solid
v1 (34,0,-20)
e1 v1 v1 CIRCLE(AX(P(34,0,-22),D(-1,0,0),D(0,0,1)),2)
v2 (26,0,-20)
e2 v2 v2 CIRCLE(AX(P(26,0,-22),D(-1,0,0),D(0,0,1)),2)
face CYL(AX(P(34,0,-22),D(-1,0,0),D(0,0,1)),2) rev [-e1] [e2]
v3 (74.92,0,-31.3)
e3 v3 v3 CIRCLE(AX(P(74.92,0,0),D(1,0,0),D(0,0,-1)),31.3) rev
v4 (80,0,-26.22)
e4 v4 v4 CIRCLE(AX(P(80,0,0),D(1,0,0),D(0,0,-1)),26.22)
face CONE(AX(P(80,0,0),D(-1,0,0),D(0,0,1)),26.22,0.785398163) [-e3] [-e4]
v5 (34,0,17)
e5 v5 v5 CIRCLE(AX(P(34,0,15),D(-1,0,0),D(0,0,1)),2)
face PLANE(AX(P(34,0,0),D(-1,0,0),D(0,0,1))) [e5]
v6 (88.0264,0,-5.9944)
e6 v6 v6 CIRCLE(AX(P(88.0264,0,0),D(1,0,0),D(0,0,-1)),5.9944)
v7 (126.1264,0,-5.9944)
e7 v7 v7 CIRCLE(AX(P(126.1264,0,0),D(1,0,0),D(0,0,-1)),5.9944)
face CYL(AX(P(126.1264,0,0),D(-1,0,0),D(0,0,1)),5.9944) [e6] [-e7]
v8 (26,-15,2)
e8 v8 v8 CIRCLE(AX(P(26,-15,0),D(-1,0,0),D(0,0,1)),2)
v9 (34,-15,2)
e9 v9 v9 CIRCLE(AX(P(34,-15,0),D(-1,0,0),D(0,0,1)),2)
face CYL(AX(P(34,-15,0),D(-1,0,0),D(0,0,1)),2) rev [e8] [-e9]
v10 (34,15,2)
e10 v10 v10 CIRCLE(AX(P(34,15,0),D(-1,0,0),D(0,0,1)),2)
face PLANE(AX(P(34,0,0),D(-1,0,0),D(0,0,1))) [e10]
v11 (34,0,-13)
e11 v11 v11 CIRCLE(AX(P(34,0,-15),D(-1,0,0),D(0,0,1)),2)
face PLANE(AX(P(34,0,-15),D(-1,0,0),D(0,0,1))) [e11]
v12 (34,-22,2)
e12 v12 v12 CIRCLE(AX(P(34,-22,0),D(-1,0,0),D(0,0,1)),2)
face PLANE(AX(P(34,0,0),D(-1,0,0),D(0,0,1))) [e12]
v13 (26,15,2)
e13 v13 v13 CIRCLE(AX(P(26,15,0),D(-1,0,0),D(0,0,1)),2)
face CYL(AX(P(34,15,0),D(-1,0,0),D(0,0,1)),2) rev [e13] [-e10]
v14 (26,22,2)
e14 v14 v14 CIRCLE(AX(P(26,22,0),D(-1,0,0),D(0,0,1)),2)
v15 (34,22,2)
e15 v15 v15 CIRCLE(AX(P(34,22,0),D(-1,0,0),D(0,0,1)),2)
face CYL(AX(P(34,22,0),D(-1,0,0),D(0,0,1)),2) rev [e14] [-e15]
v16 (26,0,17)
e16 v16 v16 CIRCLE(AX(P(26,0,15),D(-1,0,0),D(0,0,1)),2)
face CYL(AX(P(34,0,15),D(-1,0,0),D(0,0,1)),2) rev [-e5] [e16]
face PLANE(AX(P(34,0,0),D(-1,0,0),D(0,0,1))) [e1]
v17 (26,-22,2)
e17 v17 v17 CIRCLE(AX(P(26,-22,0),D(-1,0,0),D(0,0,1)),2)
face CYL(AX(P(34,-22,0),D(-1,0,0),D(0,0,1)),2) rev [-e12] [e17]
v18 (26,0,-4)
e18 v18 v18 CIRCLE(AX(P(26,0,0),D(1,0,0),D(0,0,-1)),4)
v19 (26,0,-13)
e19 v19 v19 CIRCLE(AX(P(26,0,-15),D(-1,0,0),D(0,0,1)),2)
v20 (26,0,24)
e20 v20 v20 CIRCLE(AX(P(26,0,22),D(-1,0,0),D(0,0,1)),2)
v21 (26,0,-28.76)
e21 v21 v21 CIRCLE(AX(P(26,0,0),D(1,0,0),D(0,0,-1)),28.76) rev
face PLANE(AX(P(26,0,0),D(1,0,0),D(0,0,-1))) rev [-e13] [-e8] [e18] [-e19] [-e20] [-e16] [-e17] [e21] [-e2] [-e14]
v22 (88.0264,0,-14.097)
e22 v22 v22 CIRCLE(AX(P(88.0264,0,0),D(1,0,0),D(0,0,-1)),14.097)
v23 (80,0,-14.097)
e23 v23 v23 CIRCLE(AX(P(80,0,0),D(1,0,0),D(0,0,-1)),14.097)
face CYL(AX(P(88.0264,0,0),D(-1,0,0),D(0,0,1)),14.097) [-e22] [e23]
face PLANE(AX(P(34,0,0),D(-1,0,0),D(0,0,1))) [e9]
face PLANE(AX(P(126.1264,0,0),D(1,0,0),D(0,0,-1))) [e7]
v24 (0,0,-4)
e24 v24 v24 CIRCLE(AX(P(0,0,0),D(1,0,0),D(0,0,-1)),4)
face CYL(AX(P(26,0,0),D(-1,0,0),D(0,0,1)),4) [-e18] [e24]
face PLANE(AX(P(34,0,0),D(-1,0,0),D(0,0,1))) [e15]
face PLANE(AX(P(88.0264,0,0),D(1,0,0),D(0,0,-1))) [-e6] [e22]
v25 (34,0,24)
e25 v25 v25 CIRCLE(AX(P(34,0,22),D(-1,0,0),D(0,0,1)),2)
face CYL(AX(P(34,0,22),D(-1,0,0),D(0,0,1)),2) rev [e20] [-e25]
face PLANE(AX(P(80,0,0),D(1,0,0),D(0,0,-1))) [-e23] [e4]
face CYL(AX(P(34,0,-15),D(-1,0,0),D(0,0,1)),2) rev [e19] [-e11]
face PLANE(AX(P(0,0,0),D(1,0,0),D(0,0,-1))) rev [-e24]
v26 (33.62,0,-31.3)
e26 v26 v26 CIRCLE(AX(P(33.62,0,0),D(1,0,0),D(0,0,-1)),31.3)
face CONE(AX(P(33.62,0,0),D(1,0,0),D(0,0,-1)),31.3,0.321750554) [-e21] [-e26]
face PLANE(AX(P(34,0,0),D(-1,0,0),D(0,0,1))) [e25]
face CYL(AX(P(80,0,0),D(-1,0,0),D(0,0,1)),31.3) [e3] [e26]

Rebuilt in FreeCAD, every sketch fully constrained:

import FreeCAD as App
import Part
import Sketcher

V = App.Vector
Q = App.Units.Quantity


def edges_at(feature, points):
    """Names of the edges that pass closest to the given points."""
    edges = feature.Shape.Edges
    near = lambda p: min(range(len(edges)), key=lambda i: edges[i].distToShape(Part.Vertex(*p))[0])
    return sorted({f"Edge{near(p) + 1}" for p in points})

doc = App.newDocument("Part")
body = doc.addObject("PartDesign::Body", "Body")

# Sketch on YZ plane
sketch1 = body.newObject("Sketcher::SketchObject", "Sketch")
sketch1.AttachmentSupport = (doc.getObject("YZ_Plane"), [""])
sketch1.MapMode = "FlatFace"
sketch1.addGeometry(Part.Circle(V(0, 0, 0), V(0, 0, 1), 4), False)
sketch1.addConstraint([
    Sketcher.Constraint("Coincident", 0, 3, -1, 1),
    Sketcher.Constraint("Diameter", 0, 8.0),
])
pad1 = body.newObject("PartDesign::Pad", "Pad")
pad1.Profile = sketch1
pad1.Length = 26

# Sketch on YZ plane
sketch2 = body.newObject("Sketcher::SketchObject", "Sketch001")
sketch2.AttachmentSupport = (doc.getObject("YZ_Plane"), [""])
sketch2.MapMode = "FlatFace"
sketch2.AttachmentOffset = App.Placement(V(0, 0, 26), App.Rotation())
sketch2.addGeometry(Part.Circle(V(0, 0, 0), V(0, 0, 1), 31), False)
sketch2.addConstraint([
    Sketcher.Constraint("Coincident", 0, 3, -1, 1),
    Sketcher.Constraint("Diameter", 0, 62.6),
])
pad2 = body.newObject("PartDesign::Pad", "Pad001")
pad2.Profile = sketch2
pad2.Length = 54

# Sketch on YZ plane
sketch3 = body.newObject("Sketcher::SketchObject", "Sketch002")
sketch3.AttachmentSupport = (doc.getObject("YZ_Plane"), [""])
sketch3.MapMode = "FlatFace"
sketch3.AttachmentOffset = App.Placement(V(0, 0, 26), App.Rotation())
sketch3.addGeometry([
    Part.Circle(V(0, 15, 0), V(0, 0, 1), 2),  # 0
    Part.Circle(V(-22, 0, 0), V(0, 0, 1), 2),  # 1
    Part.Circle(V(-15, 0, 0), V(0, 0, 1), 2),  # 2
    Part.Circle(V(0, -15, 0), V(0, 0, 1), 2),  # 3
    Part.Circle(V(15, 0, 0), V(0, 0, 1), 2),  # 4
    Part.Circle(V(22, 0, 0), V(0, 0, 1), 2),  # 5
    Part.Circle(V(0, 22, 0), V(0, 0, 1), 2),  # 6
    Part.Circle(V(0, -22, 0), V(0, 0, 1), 2),  # 7
], False)
sketch3.addConstraint([
    Sketcher.Constraint("Equal", 0, 1),
    Sketcher.Constraint("Equal", 1, 2),
    Sketcher.Constraint("Equal", 2, 3),
    Sketcher.Constraint("Equal", 3, 4),
    Sketcher.Constraint("Equal", 4, 5),
    Sketcher.Constraint("Equal", 5, 6),
    Sketcher.Constraint("Equal", 6, 7),
    Sketcher.Constraint("Symmetric", 0, 3, 3, 3, -1, 1),
    Sketcher.Constraint("Symmetric", 2, 3, 4, 3, -1, 1),
    Sketcher.Constraint("Symmetric", 1, 3, 5, 3, -1, 1),
    Sketcher.Constraint("Symmetric", 6, 3, 7, 3, -1, 1),
    Sketcher.Constraint("PointOnObject", 0, 3, -2),
    Sketcher.Constraint("PointOnObject", 1, 3, -1),
    Sketcher.Constraint("PointOnObject", 2, 3, -1),
    Sketcher.Constraint("PointOnObject", 6, 3, -2),
    Sketcher.Constraint("Diameter", 0, 4.0),
    Sketcher.Constraint("DistanceY", -1, 1, 0, 3, 15.0),
    Sketcher.Constraint("DistanceX", 1, 3, -1, 1, 22.0),
    Sketcher.Constraint("DistanceX", 2, 3, -1, 1, 15.0),
    Sketcher.Constraint("DistanceY", -1, 1, 6, 3, 22.0),
])
pocket1 = body.newObject("PartDesign::Pocket", "Pocket")
pocket1.Profile = sketch3
pocket1.Length = 8
pocket1.Reversed = True
doc.recompute()

chamfer = body.newObject("PartDesign::Chamfer", "Chamfer")
chamfer.Base = (pocket1, edges_at(pocket1, [(26, 0, 31.3)]))
chamfer.ChamferType = "Two distances"
chamfer.Size = Q("0.1 in")
chamfer.Size2 = Q("0.3 in")
doc.recompute()

chamfer2 = body.newObject("PartDesign::Chamfer", "Chamfer001")
chamfer2.Base = (chamfer, edges_at(chamfer, [(80, 0, 31.3)]))
chamfer2.Size = Q("0.2 in")

# Sketch on YZ plane
sketch4 = body.newObject("Sketcher::SketchObject", "Sketch003")
sketch4.AttachmentSupport = (doc.getObject("YZ_Plane"), [""])
sketch4.MapMode = "FlatFace"
sketch4.AttachmentOffset = App.Placement(V(0, 0, 80), App.Rotation())
sketch4.addGeometry(Part.Circle(V(0, 0, 0), V(0, 0, 1), 14), False)
sketch4.addConstraint([
    Sketcher.Constraint("Coincident", 0, 3, -1, 1),
    Sketcher.Constraint("Diameter", 0, Q("1.11 in")),
])
pad3 = body.newObject("PartDesign::Pad", "Pad002")
pad3.Profile = sketch4
pad3.Length = Q("0.316 in")

# Sketch on YZ plane
sketch5 = body.newObject("Sketcher::SketchObject", "Sketch004")
sketch5.AttachmentSupport = (doc.getObject("YZ_Plane"), [""])
sketch5.MapMode = "FlatFace"
sketch5.AttachmentOffset = App.Placement(V(0, 0, 88.0264), App.Rotation())
sketch5.addGeometry(Part.Circle(V(0, 0, 0), V(0, 0, 1), 6), False)
sketch5.addConstraint([
    Sketcher.Constraint("Coincident", 0, 3, -1, 1),
    Sketcher.Constraint("Diameter", 0, Q("0.472 in")),
])
pad4 = body.newObject("PartDesign::Pad", "Pad003")
pad4.Profile = sketch5
pad4.Length = Q("1.5 in")

doc.recompute()
